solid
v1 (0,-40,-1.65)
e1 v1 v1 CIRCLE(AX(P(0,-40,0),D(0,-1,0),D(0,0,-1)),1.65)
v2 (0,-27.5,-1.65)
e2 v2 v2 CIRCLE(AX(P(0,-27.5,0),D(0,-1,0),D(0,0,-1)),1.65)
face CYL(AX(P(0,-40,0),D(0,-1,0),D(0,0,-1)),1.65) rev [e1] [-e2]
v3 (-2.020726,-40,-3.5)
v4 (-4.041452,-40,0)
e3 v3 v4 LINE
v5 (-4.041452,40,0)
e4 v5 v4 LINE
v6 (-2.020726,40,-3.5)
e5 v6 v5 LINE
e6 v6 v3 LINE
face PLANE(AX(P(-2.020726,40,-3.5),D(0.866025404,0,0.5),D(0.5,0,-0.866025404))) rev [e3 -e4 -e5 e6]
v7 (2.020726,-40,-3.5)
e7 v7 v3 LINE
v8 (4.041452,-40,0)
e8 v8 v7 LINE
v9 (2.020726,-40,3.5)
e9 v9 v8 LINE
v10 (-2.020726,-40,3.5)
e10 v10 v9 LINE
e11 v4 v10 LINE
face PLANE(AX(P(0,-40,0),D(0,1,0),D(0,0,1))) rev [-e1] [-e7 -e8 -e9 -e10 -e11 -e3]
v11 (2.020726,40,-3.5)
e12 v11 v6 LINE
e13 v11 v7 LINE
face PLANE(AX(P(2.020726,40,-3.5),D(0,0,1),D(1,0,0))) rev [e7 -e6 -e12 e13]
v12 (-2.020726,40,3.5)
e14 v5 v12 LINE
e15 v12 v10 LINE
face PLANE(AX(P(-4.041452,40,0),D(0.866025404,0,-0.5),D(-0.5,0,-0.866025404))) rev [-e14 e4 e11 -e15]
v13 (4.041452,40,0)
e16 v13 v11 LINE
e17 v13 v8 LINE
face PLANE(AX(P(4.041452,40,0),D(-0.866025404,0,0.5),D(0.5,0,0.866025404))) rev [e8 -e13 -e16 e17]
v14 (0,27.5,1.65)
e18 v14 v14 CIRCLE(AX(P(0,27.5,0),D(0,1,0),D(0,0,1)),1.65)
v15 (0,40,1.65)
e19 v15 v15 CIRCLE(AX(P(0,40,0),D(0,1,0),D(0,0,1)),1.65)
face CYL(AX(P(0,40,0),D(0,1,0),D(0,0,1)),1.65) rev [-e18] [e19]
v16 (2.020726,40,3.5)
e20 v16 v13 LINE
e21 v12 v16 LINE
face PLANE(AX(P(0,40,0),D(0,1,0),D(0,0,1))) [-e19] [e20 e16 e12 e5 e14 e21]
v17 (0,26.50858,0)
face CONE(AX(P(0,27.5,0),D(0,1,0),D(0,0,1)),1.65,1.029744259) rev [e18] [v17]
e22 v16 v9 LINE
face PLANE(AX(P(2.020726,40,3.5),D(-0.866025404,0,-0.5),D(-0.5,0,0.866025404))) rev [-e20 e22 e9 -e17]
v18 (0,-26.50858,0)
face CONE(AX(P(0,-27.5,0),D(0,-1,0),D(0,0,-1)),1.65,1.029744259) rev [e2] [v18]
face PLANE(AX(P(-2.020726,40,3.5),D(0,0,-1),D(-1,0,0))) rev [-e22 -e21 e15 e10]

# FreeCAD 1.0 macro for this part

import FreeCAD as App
import Part
import Sketcher
from FreeCAD import Vector
Q = App.Units.Quantity


def add_polygon(sketch, points):
    """Adds a closed chain of lines whose ends are joined by coincident constraints."""
    first, n = sketch.GeometryCount, len(points)
    for a, b in zip(points, points[1:] + points[:1]):
        sketch.addGeometry(Part.LineSegment(App.Vector(*a, 0), App.Vector(*b, 0)), False)
    for i in range(n):
        sketch.addConstraint(Sketcher.Constraint("Coincident", first + i, 2, first + (i + 1) % n, 1))

doc = App.newDocument("Part")
body = doc.addObject("PartDesign::Body", "Body")

sketch1 = body.newObject("Sketcher::SketchObject", "Sketch")
sketch1.AttachmentSupport = (doc.getObject("XZ_Plane"), [""])
sketch1.MapMode = "FlatFace"
add_polygon(sketch1, [(-2.020726, -3.5), (-4.041452, 0), (-2.020726, 3.5), (2.020726, 3.5), (4.041452, 0), (2.020726, -3.5)])
sketch1.addConstraint(Sketcher.Constraint("Horizontal", 2))
sketch1.addConstraint(Sketcher.Constraint("Horizontal", 5))
sketch1.addConstraint(Sketcher.Constraint("Symmetric", 0, 2, 3, 2, -1, 1))
sketch1.addConstraint(Sketcher.Constraint("Symmetric", 1, 2, 4, 2, -1, 1))
sketch1.addConstraint(Sketcher.Constraint("PointOnObject", 0, 2, -1))
sketch1.addConstraint(Sketcher.Constraint("Parallel", 0, 3))
sketch1.addConstraint(Sketcher.Constraint("Vertical", 2, 2, 4, 2))
sketch1.addConstraint(Sketcher.Constraint("Angle", 0, Q("120 deg")))
sketch1.addConstraint(Sketcher.Constraint("DistanceY", 4, 2, 2, 2, 7.0))
sketch1.addConstraint(Sketcher.Constraint("DistanceX", 2, 1, 2, 2, 4.041452))
pad1 = body.newObject("PartDesign::Pad", "Pad")
pad1.Profile = sketch1
pad1.Length = 80
pad1.Midplane = True

sketch2 = body.newObject("Sketcher::SketchObject", "Sketch001")
sketch2.AttachmentSupport = (doc.getObject("YZ_Plane"), [""])
sketch2.MapMode = "FlatFace"
add_polygon(sketch2, [(26.50858, 0), (40, 0), (40, 1.65), (27.5, 1.65)])
sketch2.addConstraint(Sketcher.Constraint("Horizontal", 0))
sketch2.addConstraint(Sketcher.Constraint("Vertical", 1))
sketch2.addConstraint(Sketcher.Constraint("Horizontal", 2))
sketch2.addConstraint(Sketcher.Constraint("PointOnObject", 0, 2, -1))
sketch2.addConstraint(Sketcher.Constraint("Angle", 3, Q("-121 deg")))
sketch2.addConstraint(Sketcher.Constraint("DistanceX", 2, 2, 2, 1, 12.5))
sketch2.addConstraint(Sketcher.Constraint("DistanceX", -1, 1, 0, 2, 40.0))
sketch2.addConstraint(Sketcher.Constraint("DistanceY", 1, 1, 1, 2, 1.65))
groove = body.newObject("PartDesign::Groove", "Groove")
groove.Profile = sketch2
groove.ReferenceAxis = (sketch2, ["H_Axis"])
groove.Angle = 360
doc.recompute()

mirrored = body.newObject("PartDesign::Mirrored", "Mirrored")
mirrored.Originals = [groove]
mirrored.MirrorPlane = (doc.getObject("XZ_Plane"), [""])
body.Tip = mirrored

doc.recompute()
